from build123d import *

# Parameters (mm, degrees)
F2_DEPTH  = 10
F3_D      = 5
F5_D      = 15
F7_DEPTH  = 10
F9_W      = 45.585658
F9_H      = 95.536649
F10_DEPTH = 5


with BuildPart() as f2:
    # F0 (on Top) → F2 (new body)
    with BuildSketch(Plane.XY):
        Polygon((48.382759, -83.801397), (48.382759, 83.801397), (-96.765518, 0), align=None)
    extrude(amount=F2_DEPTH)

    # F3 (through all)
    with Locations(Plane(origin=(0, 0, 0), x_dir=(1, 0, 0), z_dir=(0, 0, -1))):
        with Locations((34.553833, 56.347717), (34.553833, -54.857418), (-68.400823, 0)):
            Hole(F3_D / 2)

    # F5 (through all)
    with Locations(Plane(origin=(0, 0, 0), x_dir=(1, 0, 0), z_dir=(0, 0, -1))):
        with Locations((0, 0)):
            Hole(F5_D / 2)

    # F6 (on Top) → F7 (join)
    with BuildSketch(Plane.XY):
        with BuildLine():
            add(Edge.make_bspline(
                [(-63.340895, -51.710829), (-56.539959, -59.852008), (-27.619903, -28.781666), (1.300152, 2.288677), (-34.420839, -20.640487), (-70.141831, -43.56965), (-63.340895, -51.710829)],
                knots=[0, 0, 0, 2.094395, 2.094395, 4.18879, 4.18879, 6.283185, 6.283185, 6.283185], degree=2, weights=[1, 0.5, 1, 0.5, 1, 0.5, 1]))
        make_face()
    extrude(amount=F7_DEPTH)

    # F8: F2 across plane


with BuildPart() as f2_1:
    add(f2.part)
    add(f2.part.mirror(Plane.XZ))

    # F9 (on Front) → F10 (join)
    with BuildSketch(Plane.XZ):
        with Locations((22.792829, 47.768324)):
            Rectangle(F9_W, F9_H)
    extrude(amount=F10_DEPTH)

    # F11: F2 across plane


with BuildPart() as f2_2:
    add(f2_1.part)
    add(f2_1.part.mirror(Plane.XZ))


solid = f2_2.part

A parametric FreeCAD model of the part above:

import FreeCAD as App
import Part
import Sketcher

V = App.Vector
Q = App.Units.Quantity

doc = App.newDocument("Part")
body = doc.addObject("PartDesign::Body", "Body")

sketch1 = body.newObject("Sketcher::SketchObject", "Sketch")
sketch1.AttachmentSupport = (doc.getObject("XY_Plane"), [""])
sketch1.MapMode = "FlatFace"
sketch1.addGeometry(Part.LineSegment(V(48, -84, 0), V(48, 84, 0)), False)
sketch1.addGeometry(Part.LineSegment(V(48, 84, 0), V(-97, 0, 0)), False)
sketch1.addGeometry(Part.LineSegment(V(-97, 0, 0), V(48, -84, 0)), False)
sketch1.addConstraint(Sketcher.Constraint("Coincident", 0, 2, 1, 1))
sketch1.addConstraint(Sketcher.Constraint("Coincident", 1, 2, 2, 1))
sketch1.addConstraint(Sketcher.Constraint("Coincident", 2, 2, 0, 1))
sketch1.addConstraint(Sketcher.Constraint("Vertical", 0))
sketch1.addConstraint(Sketcher.Constraint("PointOnObject", 1, 2, -1))
sketch1.addConstraint(Sketcher.Constraint("Equal", 1, 2))
sketch1.addConstraint(Sketcher.Constraint("Angle", 1, Q("-150 deg")))
sketch1.addConstraint(Sketcher.Constraint("DistanceY", 0, 1, 0, 2, 167.602794))
sketch1.addConstraint(Sketcher.Constraint("DistanceX", -1, 1, 0, 2, 48.382759))
pad1 = body.newObject("PartDesign::Pad", "Pad")
pad1.Profile = sketch1
pad1.Length = 10

sketch2 = body.newObject("Sketcher::SketchObject", "Sketch001")
sketch2.AttachmentSupport = (doc.getObject("XY_Plane"), [""])
sketch2.MapMode = "FlatFace"
sketch2.addGeometry(Part.Circle(V(34.6, -56.3, 0), V(0, 0, 1), 2.5), False)
sketch2.addGeometry(Part.Circle(V(34.6, 54.9, 0), V(0, 0, 1), 2.5), False)
sketch2.addGeometry(Part.Circle(V(-68.4, 0, 0), V(0, 0, 1), 2.5), False)
sketch2.addConstraint(Sketcher.Constraint("Equal", 0, 1))
sketch2.addConstraint(Sketcher.Constraint("Equal", 1, 2))
sketch2.addConstraint(Sketcher.Constraint("PointOnObject", 2, 3, -1))
sketch2.addConstraint(Sketcher.Constraint("Vertical", 0, 3, 1, 3))
sketch2.addConstraint(Sketcher.Constraint("Diameter", 0, 5.0))
sketch2.addConstraint(Sketcher.Constraint("DistanceY", -1, 1, 1, 3, 54.857418))
sketch2.addConstraint(Sketcher.Constraint("DistanceX", -1, 1, 0, 3, 34.553833))
sketch2.addConstraint(Sketcher.Constraint("DistanceY", 0, 3, -1, 1, 56.347717))
sketch2.addConstraint(Sketcher.Constraint("DistanceX", 2, 3, -1, 1, 68.400823))
doc.recompute()
hole = body.newObject("PartDesign::Hole", "Hole")
hole.Profile = sketch2
hole.ThreadType = "None"
hole.Diameter = 5
hole.DepthType = "ThroughAll"
hole.Reversed = True

sketch3 = body.newObject("Sketcher::SketchObject", "Sketch002")
sketch3.AttachmentSupport = (doc.getObject("XY_Plane"), [""])
sketch3.MapMode = "FlatFace"
sketch3.addGeometry(Part.Circle(V(0, 0, 0), V(0, 0, 1), 8), False)
sketch3.addConstraint(Sketcher.Constraint("Coincident", 0, 3, -1, 1))
sketch3.addConstraint(Sketcher.Constraint("Diameter", 0, 15.0))
doc.recompute()
hole2 = body.newObject("PartDesign::Hole", "Hole001")
hole2.Profile = sketch3
hole2.ThreadType = "None"
hole2.Diameter = 15
hole2.DepthType = "ThroughAll"
hole2.Reversed = True

sketch4 = body.newObject("Sketcher::SketchObject", "Sketch003")
sketch4.AttachmentSupport = (doc.getObject("XY_Plane"), [""])
sketch4.MapMode = "FlatFace"
sketch4.addGeometry(Part.BSplineCurve([V(-63.340895, -51.710829, 0), V(-56.539959, -59.852008, 0), V(-27.619903, -28.781666, 0), V(1.300152, 2.288677, 0), V(-34.420839, -20.640487, 0), V(-70.141831, -43.56965, 0), V(-63.340895, -51.710829, 0)], [3, 2, 2, 3], [0, 2.094395, 4.18879, 6.283185], False, 2, [1, 0.5, 1, 0.5, 1, 0.5, 1], False), False)
sketch4.addConstraint(Sketcher.Constraint("Block", 0))
pad2 = body.newObject("PartDesign::Pad", "Pad001")
pad2.Profile = sketch4
pad2.Length = 10
body2 = doc.addObject("PartDesign::Body", "Body001")
doc.recompute()

body2.BaseFeature = body
doc.recompute()

mirroring = doc.addObject("Part::Mirroring", "Mirroring")
mirroring.Source = body
mirroring.Base = V(0, 0, 0)
mirroring.Normal = V(0, -1, 0)
body3 = doc.addObject("PartDesign::Body", "Body002")
body3.BaseFeature = mirroring
boolean = body2.newObject("PartDesign::Boolean", "Boolean")
boolean.Type = "Fuse"
boolean.addObjects([body3])
doc.recompute()

sketch5 = body2.newObject("Sketcher::SketchObject", "Sketch004")
sketch5.AttachmentSupport = (doc.getObject("XZ_Plane001"), [""])
sketch5.MapMode = "FlatFace"
sketch5.addGeometry(Part.LineSegment(V(0, 96, 0), V(0, 0, 0)), False)
sketch5.addGeometry(Part.LineSegment(V(0, 0, 0), V(46, 0, 0)), False)
sketch5.addGeometry(Part.LineSegment(V(46, 0, 0), V(46, 96, 0)), False)
sketch5.addGeometry(Part.LineSegment(V(46, 96, 0), V(0, 96, 0)), False)
sketch5.addConstraint(Sketcher.Constraint("Coincident", 0, 2, 1, 1))
sketch5.addConstraint(Sketcher.Constraint("Coincident", 1, 2, 2, 1))
sketch5.addConstraint(Sketcher.Constraint("Coincident", 2, 2, 3, 1))
sketch5.addConstraint(Sketcher.Constraint("Coincident", 3, 2, 0, 1))
sketch5.addConstraint(Sketcher.Constraint("Vertical", 0))
sketch5.addConstraint(Sketcher.Constraint("Horizontal", 1))
sketch5.addConstraint(Sketcher.Constraint("Vertical", 2))
sketch5.addConstraint(Sketcher.Constraint("Horizontal", 3))
sketch5.addConstraint(Sketcher.Constraint("Coincident", 0, 2, -1, 1))
sketch5.addConstraint(Sketcher.Constraint("DistanceX", 1, 1, 1, 2, 45.585658))
sketch5.addConstraint(Sketcher.Constraint("DistanceY", 0, 2, 0, 1, 95.536649))
pad3 = body2.newObject("PartDesign::Pad", "Pad002")
pad3.Profile = sketch5
pad3.Length = 5
body4 = doc.addObject("PartDesign::Body", "Body003")
doc.recompute()

body4.BaseFeature = body2
doc.recompute()

mirroring2 = doc.addObject("Part::Mirroring", "Mirroring001")
mirroring2.Source = body2
mirroring2.Base = V(0, 0, 0)
mirroring2.Normal = V(0, -1, 0)
body5 = doc.addObject("PartDesign::Body", "Body004")
body5.BaseFeature = mirroring2
boolean2 = body4.newObject("PartDesign::Boolean", "Boolean001")
boolean2.Type = "Fuse"
boolean2.addObjects([body5])
doc.recompute()
mirroring.Visibility = False
mirroring2.Visibility = False

doc.recompute()
